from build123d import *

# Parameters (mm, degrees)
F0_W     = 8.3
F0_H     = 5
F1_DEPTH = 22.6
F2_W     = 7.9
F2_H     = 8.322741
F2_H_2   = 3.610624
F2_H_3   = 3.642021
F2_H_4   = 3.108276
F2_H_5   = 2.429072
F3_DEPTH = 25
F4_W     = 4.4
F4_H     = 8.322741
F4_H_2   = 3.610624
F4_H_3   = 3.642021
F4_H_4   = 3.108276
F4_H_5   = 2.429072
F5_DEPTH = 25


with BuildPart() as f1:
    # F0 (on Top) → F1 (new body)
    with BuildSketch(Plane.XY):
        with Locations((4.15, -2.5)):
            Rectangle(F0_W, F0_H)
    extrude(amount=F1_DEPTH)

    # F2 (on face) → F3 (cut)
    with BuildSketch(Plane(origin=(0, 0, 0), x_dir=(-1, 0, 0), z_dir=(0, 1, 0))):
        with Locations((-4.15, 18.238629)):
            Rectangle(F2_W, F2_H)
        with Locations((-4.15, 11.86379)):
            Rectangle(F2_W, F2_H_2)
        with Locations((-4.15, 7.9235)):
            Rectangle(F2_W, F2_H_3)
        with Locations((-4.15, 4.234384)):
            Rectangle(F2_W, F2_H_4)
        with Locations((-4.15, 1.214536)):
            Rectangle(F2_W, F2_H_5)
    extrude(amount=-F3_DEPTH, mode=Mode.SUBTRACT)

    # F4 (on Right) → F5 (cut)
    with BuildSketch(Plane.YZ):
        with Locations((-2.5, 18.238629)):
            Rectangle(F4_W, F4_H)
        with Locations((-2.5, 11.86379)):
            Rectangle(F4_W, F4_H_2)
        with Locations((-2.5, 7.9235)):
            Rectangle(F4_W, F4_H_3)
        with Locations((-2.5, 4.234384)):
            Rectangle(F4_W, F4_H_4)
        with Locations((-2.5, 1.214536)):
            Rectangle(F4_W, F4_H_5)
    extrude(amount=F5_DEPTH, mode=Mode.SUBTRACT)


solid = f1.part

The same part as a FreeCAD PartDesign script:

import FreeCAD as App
import Part
import Sketcher

V = App.Vector
Q = App.Units.Quantity


def add_polygon(sketch, points):
    """Adds a closed chain of lines whose ends are joined by coincident constraints."""
    first, n = sketch.GeometryCount, len(points)
    for a, b in zip(points, points[1:] + points[:1]):
        sketch.addGeometry(Part.LineSegment(App.Vector(*a, 0), App.Vector(*b, 0)), False)
    for i in range(n):
        sketch.addConstraint(Sketcher.Constraint("Coincident", first + i, 2, first + (i + 1) % n, 1))

doc = App.newDocument("Part")
body = doc.addObject("PartDesign::Body", "Body")

# Sketch on XY plane
sketch1 = body.newObject("Sketcher::SketchObject", "Sketch")
sketch1.AttachmentSupport = (doc.getObject("XY_Plane"), [""])
sketch1.MapMode = "FlatFace"
add_polygon(sketch1, [(0, 0), (0, -5), (8.3, -5), (8.3, 0)])  # lines 0-3
sketch1.addConstraint([
    Sketcher.Constraint("Vertical", 0),
    Sketcher.Constraint("Horizontal", 1),
    Sketcher.Constraint("Vertical", 2),
    Sketcher.Constraint("Horizontal", 3),
    Sketcher.Constraint("Coincident", 3, 2, -1, 1),
    Sketcher.Constraint("DistanceY", 0, 2, 0, 1, Q("5 mm")),
    Sketcher.Constraint("DistanceX", 1, 1, 1, 2, Q("8.3 mm")),
])
pad1 = body.newObject("PartDesign::Pad", "Pad")
pad1.Profile = sketch1
pad1.Length = 22.6

# Sketch on XZ plane
sketch2 = body.newObject("Sketcher::SketchObject", "Sketch001")
sketch2.AttachmentSupport = (doc.getObject("XZ_Plane"), [""])
sketch2.MapMode = "FlatFace"
add_polygon(sketch2, [(8.1, 22.399999), (8.1, 14.077258), (0.2, 14.077258), (0.2, 22.399999)])  # lines 0-3
add_polygon(sketch2, [(8.1, 13.669102), (8.1, 10.058478), (0.2, 10.058478), (0.2, 13.669102)])  # lines 4-7
add_polygon(sketch2, [(8.1, 9.744511), (8.1, 6.102489), (0.2, 6.102489), (0.2, 9.744511)])  # lines 8-11
add_polygon(sketch2, [(8.1, 5.788522), (8.1, 2.680246), (0.2, 2.680246), (0.2, 5.788522)])  # lines 12-15
add_polygon(sketch2, [(8.1, 2.429072), (8.1, 0), (0.2, 0), (0.2, 2.429072)])  # lines 16-19
sketch2.addConstraint([
    Sketcher.Constraint("Vertical", 0),
    Sketcher.Constraint("Horizontal", 1),
    Sketcher.Constraint("Vertical", 2),
    Sketcher.Constraint("Horizontal", 3),
    Sketcher.Constraint("Vertical", 4),
    Sketcher.Constraint("Horizontal", 5),
    Sketcher.Constraint("Vertical", 6),
    Sketcher.Constraint("Horizontal", 7),
    Sketcher.Constraint("Vertical", 8),
    Sketcher.Constraint("Horizontal", 9),
    Sketcher.Constraint("Vertical", 10),
    Sketcher.Constraint("Horizontal", 11),
    Sketcher.Constraint("Vertical", 12),
    Sketcher.Constraint("Horizontal", 13),
    Sketcher.Constraint("Vertical", 14),
    Sketcher.Constraint("Horizontal", 15),
    Sketcher.Constraint("Vertical", 16),
    Sketcher.Constraint("Horizontal", 17),
    Sketcher.Constraint("Vertical", 18),
    Sketcher.Constraint("Horizontal", 19),
    Sketcher.Constraint("PointOnObject", 16, 2, -1),
    Sketcher.Constraint("Vertical", 3, 2, 4, 2),
    Sketcher.Constraint("Vertical", 2, 2, 5, 2),
    Sketcher.Constraint("Vertical", 7, 2, 8, 2),
    Sketcher.Constraint("Vertical", 6, 2, 9, 2),
    Sketcher.Constraint("Vertical", 11, 2, 12, 2),
    Sketcher.Constraint("Vertical", 10, 2, 13, 2),
    Sketcher.Constraint("Vertical", 15, 2, 16, 2),
    Sketcher.Constraint("Vertical", 14, 2, 17, 2),
    Sketcher.Constraint("DistanceX", 1, 2, 1, 1, Q("7.9 mm")),
    Sketcher.Constraint("DistanceX", -1, 1, 0, 2, Q("8.1 mm")),
    Sketcher.Constraint("DistanceY", -1, 1, 2, 2, Q("22.399999 mm")),
    Sketcher.Constraint("DistanceY", 0, 2, 0, 1, Q("8.322741 mm")),
    Sketcher.Constraint("DistanceY", 8, 2, 8, 1, Q("3.642021 mm")),
    Sketcher.Constraint("DistanceY", 4, 2, 4, 1, Q("3.610624 mm")),
    Sketcher.Constraint("DistanceY", 12, 2, 12, 1, Q("3.108276 mm")),
    Sketcher.Constraint("DistanceY", 16, 2, 16, 1, Q("2.429072 mm")),
    Sketcher.Constraint("DistanceY", -1, 1, 8, 2, Q("6.102489 mm")),
    Sketcher.Constraint("DistanceY", 4, 2, 0, 2, Q("4.018781 mm")),
    Sketcher.Constraint("DistanceY", 12, 2, 4, 2, Q("7.378232 mm")),
])
pocket1 = body.newObject("PartDesign::Pocket", "Pocket")
pocket1.Profile = sketch2
pocket1.Length = 25
pocket1.Reversed = True

# Sketch on YZ plane
sketch3 = body.newObject("Sketcher::SketchObject", "Sketch002")
sketch3.AttachmentSupport = (doc.getObject("YZ_Plane"), [""])
sketch3.MapMode = "FlatFace"
add_polygon(sketch3, [(-4.7, 22.399999), (-4.7, 14.077258), (-0.3, 14.077258), (-0.3, 22.399999)])  # lines 0-3
add_polygon(sketch3, [(-4.7, 13.669102), (-4.7, 10.058478), (-0.3, 10.058478), (-0.3, 13.669102)])  # lines 4-7
add_polygon(sketch3, [(-4.7, 9.744511), (-4.7, 6.102489), (-0.3, 6.102489), (-0.3, 9.744511)])  # lines 8-11
add_polygon(sketch3, [(-4.7, 5.788522), (-4.7, 2.680246), (-0.3, 2.680246), (-0.3, 5.788522)])  # lines 12-15
add_polygon(sketch3, [(-4.7, 2.429072), (-4.7, 0), (-0.3, 0), (-0.3, 2.429072)])  # lines 16-19
sketch3.addConstraint([
    Sketcher.Constraint("Vertical", 0),
    Sketcher.Constraint("Horizontal", 1),
    Sketcher.Constraint("Vertical", 2),
    Sketcher.Constraint("Horizontal", 3),
    Sketcher.Constraint("Vertical", 4),
    Sketcher.Constraint("Horizontal", 5),
    Sketcher.Constraint("Vertical", 6),
    Sketcher.Constraint("Horizontal", 7),
    Sketcher.Constraint("Vertical", 8),
    Sketcher.Constraint("Horizontal", 9),
    Sketcher.Constraint("Vertical", 10),
    Sketcher.Constraint("Horizontal", 11),
    Sketcher.Constraint("Vertical", 12),
    Sketcher.Constraint("Horizontal", 13),
    Sketcher.Constraint("Vertical", 14),
    Sketcher.Constraint("Horizontal", 15),
    Sketcher.Constraint("Vertical", 16),
    Sketcher.Constraint("Horizontal", 17),
    Sketcher.Constraint("Vertical", 18),
    Sketcher.Constraint("Horizontal", 19),
    Sketcher.Constraint("PointOnObject", 16, 2, -1),
    Sketcher.Constraint("Vertical", 3, 2, 4, 2),
    Sketcher.Constraint("Vertical", 2, 2, 5, 2),
    Sketcher.Constraint("Vertical", 7, 2, 8, 2),
    Sketcher.Constraint("Vertical", 6, 2, 9, 2),
    Sketcher.Constraint("Vertical", 11, 2, 12, 2),
    Sketcher.Constraint("Vertical", 10, 2, 13, 2),
    Sketcher.Constraint("Vertical", 15, 2, 16, 2),
    Sketcher.Constraint("Vertical", 14, 2, 17, 2),
    Sketcher.Constraint("DistanceX", 1, 1, 1, 2, Q("4.4 mm")),
    Sketcher.Constraint("DistanceX", 0, 2, -1, 1, Q("4.7 mm")),
    Sketcher.Constraint("DistanceY", -1, 1, 2, 2, Q("22.399999 mm")),
    Sketcher.Constraint("DistanceY", 0, 2, 0, 1, Q("8.322741 mm")),
    Sketcher.Constraint("DistanceY", 8, 2, 8, 1, Q("3.642021 mm")),
    Sketcher.Constraint("DistanceY", 4, 2, 4, 1, Q("3.610624 mm")),
    Sketcher.Constraint("DistanceY", 12, 2, 12, 1, Q("3.108276 mm")),
    Sketcher.Constraint("DistanceY", 16, 2, 16, 1, Q("2.429072 mm")),
    Sketcher.Constraint("DistanceY", -1, 1, 8, 2, Q("6.102489 mm")),
    Sketcher.Constraint("DistanceY", 4, 2, 0, 2, Q("4.018781 mm")),
    Sketcher.Constraint("DistanceY", 12, 2, 4, 2, Q("7.378232 mm")),
])
pocket2 = body.newObject("PartDesign::Pocket", "Pocket001")
pocket2.Profile = sketch3
pocket2.Length = 25
pocket2.Reversed = True

doc.recompute()
